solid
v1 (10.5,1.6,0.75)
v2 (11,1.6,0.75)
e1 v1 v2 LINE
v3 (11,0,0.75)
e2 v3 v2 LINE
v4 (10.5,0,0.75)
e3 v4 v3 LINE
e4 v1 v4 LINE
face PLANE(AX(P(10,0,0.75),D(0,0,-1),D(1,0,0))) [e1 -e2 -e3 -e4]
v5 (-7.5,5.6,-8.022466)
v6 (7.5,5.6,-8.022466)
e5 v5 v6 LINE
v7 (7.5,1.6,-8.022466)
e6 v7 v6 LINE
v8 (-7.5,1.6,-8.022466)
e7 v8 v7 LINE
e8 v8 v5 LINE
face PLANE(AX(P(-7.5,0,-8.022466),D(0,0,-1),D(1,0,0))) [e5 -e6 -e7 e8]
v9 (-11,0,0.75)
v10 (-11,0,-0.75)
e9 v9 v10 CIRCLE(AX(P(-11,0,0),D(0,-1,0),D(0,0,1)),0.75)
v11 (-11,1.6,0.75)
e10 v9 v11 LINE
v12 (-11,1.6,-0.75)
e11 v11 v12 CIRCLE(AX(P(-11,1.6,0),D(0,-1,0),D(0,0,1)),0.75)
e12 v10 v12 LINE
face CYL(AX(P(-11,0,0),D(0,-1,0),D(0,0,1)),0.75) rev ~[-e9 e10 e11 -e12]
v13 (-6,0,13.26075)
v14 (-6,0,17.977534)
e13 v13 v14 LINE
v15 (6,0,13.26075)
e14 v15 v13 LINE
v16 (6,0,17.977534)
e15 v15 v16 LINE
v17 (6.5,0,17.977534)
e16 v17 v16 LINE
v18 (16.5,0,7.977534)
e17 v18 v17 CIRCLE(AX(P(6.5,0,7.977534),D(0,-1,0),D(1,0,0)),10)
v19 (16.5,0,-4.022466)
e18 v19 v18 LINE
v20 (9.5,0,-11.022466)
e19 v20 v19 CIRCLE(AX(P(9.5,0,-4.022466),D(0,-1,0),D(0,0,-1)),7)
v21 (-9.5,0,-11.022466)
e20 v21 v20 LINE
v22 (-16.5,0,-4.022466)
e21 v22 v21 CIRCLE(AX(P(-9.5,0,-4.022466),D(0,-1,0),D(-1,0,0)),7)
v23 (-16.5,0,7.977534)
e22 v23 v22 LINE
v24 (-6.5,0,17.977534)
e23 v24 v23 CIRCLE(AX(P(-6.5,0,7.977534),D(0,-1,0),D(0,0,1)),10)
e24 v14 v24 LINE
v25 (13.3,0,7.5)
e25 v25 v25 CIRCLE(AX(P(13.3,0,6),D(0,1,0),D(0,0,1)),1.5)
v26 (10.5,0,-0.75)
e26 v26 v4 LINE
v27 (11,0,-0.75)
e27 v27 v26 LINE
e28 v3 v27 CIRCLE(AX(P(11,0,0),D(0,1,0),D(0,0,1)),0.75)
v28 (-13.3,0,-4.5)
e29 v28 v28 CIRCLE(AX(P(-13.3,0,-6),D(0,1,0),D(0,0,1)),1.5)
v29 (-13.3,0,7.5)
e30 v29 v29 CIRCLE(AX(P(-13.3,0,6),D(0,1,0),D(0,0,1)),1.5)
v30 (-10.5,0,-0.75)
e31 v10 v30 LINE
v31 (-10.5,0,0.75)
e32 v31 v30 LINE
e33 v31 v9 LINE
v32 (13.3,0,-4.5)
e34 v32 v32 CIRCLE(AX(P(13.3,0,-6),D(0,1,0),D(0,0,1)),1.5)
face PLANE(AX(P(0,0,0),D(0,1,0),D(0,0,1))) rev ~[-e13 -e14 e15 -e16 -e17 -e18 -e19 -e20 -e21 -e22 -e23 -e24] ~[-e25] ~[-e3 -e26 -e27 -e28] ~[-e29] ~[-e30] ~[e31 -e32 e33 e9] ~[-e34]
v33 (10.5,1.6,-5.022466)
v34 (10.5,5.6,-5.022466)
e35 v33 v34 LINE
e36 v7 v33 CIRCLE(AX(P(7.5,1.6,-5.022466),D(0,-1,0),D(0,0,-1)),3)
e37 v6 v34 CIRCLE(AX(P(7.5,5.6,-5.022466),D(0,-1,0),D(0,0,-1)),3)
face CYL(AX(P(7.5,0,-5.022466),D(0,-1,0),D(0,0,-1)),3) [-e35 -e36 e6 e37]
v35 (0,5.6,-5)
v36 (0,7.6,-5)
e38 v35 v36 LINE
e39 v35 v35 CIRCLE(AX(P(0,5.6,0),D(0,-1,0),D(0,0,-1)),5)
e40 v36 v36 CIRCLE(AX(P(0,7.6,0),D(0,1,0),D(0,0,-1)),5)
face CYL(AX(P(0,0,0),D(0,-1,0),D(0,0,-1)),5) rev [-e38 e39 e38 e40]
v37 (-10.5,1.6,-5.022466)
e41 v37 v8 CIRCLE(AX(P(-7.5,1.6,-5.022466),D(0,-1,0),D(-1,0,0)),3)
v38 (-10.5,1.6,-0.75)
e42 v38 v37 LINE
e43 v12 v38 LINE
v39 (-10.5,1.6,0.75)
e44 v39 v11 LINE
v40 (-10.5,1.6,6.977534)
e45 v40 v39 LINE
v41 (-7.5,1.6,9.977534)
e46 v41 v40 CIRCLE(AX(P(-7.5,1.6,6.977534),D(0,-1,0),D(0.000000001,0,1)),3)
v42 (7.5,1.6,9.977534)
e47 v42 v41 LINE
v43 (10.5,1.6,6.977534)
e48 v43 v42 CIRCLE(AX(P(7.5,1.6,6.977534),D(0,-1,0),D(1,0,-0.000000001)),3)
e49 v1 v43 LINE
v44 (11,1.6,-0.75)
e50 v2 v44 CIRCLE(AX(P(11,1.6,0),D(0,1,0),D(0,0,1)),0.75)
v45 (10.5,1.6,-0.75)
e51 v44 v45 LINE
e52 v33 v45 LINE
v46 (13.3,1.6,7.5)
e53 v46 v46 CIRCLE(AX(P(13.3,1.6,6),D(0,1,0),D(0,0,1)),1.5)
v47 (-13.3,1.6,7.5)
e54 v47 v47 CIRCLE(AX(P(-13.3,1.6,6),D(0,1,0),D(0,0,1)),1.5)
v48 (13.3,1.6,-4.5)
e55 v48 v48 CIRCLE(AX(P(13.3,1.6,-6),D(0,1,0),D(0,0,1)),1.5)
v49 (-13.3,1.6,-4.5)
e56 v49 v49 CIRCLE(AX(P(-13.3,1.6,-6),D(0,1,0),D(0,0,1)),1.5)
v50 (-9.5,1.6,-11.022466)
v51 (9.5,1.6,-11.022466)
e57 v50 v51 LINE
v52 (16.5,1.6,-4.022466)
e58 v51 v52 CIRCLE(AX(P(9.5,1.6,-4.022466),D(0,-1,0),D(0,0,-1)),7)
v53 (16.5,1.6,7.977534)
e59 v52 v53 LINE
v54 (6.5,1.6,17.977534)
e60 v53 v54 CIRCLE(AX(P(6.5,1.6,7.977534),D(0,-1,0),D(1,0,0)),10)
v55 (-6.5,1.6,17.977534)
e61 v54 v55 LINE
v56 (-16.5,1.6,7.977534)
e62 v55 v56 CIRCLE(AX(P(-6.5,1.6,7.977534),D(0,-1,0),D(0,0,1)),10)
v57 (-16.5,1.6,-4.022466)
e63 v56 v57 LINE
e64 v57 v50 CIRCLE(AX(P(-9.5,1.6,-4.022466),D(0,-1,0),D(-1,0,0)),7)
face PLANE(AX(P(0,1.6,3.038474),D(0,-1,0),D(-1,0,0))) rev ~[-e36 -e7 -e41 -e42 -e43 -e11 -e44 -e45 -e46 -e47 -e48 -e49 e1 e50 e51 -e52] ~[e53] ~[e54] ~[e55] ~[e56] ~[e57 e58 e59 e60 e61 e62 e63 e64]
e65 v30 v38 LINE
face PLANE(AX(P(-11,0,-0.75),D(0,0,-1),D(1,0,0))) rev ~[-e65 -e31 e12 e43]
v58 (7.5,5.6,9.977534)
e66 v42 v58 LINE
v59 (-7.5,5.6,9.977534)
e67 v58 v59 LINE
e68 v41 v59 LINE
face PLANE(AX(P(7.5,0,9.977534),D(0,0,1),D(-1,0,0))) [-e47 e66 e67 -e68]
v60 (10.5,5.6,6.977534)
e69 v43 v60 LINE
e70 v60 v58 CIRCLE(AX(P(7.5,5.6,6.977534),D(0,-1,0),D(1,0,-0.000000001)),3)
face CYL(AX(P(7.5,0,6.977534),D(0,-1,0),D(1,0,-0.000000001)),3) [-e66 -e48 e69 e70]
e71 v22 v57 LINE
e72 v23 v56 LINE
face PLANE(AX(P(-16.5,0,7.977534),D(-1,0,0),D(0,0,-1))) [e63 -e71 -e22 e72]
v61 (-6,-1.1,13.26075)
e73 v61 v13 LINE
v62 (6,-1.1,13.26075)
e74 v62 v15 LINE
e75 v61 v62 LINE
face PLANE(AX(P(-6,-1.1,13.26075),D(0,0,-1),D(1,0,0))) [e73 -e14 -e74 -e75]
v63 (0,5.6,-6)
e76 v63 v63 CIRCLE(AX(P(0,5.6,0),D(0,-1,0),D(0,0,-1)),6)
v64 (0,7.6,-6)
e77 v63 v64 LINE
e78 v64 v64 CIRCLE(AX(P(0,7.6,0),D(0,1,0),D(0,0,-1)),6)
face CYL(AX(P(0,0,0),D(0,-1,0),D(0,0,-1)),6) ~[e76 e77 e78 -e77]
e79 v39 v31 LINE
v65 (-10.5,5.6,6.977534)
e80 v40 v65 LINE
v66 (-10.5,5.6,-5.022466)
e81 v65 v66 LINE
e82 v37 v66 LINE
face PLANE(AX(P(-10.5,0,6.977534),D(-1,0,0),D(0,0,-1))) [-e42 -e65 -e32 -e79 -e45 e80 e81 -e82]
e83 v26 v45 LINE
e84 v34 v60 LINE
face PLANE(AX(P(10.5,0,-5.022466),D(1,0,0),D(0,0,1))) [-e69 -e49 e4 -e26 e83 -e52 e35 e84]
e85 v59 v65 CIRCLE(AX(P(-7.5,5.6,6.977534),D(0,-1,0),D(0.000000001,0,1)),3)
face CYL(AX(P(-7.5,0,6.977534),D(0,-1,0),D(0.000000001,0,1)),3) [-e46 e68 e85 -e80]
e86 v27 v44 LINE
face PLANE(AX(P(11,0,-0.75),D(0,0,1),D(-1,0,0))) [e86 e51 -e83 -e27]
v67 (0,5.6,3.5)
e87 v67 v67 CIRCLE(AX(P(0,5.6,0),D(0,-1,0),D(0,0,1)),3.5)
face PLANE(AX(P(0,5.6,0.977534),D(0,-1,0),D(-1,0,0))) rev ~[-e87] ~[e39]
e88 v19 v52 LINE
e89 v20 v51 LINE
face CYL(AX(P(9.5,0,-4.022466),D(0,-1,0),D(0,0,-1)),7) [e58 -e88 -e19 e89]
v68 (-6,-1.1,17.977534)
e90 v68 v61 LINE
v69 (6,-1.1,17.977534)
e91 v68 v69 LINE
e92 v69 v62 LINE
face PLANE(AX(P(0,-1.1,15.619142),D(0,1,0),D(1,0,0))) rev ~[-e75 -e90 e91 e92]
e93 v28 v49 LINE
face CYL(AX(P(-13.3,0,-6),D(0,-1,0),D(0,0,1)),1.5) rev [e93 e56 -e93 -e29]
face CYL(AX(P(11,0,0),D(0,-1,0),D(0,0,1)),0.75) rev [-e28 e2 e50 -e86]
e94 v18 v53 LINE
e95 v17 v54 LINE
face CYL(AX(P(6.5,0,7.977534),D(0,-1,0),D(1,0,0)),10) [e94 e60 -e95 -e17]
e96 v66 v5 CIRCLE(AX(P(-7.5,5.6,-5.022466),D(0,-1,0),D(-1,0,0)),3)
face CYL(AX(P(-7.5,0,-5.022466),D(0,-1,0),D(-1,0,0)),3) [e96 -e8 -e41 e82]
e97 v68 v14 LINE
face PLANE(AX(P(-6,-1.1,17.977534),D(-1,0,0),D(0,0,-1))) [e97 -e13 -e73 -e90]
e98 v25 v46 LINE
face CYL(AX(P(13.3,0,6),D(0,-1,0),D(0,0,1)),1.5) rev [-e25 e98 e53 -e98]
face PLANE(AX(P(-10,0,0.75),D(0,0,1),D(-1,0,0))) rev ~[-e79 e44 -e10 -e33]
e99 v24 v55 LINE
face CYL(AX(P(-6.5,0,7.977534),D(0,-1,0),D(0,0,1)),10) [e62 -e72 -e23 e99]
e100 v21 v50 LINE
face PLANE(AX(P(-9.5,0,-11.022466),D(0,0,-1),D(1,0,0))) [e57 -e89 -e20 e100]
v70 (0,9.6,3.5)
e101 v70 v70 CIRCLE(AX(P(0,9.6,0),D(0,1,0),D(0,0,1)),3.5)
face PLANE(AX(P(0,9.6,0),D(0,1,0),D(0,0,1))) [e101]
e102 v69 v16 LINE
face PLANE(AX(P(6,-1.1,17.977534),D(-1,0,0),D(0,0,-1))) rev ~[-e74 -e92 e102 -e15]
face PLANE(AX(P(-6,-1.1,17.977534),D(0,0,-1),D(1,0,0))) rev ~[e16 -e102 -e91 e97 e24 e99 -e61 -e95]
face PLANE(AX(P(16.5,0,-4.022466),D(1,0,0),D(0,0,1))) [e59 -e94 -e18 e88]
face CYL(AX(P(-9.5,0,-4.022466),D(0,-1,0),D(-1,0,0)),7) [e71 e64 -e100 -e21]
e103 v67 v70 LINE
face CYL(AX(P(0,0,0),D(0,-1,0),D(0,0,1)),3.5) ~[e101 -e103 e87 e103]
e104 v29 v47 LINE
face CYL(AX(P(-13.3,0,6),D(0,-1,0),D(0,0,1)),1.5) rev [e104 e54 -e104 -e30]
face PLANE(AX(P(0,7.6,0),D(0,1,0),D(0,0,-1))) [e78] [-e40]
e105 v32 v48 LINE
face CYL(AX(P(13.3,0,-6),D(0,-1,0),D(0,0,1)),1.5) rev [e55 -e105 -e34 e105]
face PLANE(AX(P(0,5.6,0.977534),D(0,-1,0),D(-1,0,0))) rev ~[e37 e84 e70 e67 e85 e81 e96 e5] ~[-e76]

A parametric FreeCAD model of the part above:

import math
import FreeCAD as App
import Part
import Sketcher
from FreeCAD import Vector


def add_polygon(sketch, points):
    """Adds a closed chain of lines whose ends are joined by coincident constraints."""
    first, n = sketch.GeometryCount, len(points)
    for a, b in zip(points, points[1:] + points[:1]):
        sketch.addGeometry(Part.LineSegment(App.Vector(*a, 0), App.Vector(*b, 0)), False)
    for i in range(n):
        sketch.addConstraint(Sketcher.Constraint("Coincident", first + i, 2, first + (i + 1) % n, 1))

doc = App.newDocument("Part")
body = doc.addObject("PartDesign::Body", "Body")

# Sketch on XZ plane
sketch1 = body.newObject("Sketcher::SketchObject", "Sketch")
sketch1.AttachmentSupport = (doc.getObject("XZ_Plane"), [""])
sketch1.MapMode = "FlatFace"
sketch1.addGeometry(Part.LineSegment(Vector(9.5, -11.022466, 0), Vector(-9.5, -11.022466, 0)), False)
sketch1.addGeometry(Part.ArcOfCircle(Part.Circle(Vector(-9.5, -4.022466, 0), Vector(0, 0, 1), 7), math.radians(-180), math.radians(-90)), False)
sketch1.addGeometry(Part.LineSegment(Vector(-16.5, -4.022466, 0), Vector(-16.5, 7.977534, 0)), False)
sketch1.addGeometry(Part.ArcOfCircle(Part.Circle(Vector(-6.5, 7.977534, 0), Vector(0, 0, 1), 10), math.radians(90), math.radians(180)), False)
sketch1.addGeometry(Part.LineSegment(Vector(-6.5, 17.977534, 0), Vector(6.5, 17.977534, 0)), False)
sketch1.addGeometry(Part.ArcOfCircle(Part.Circle(Vector(6.5, 7.977534, 0), Vector(0, 0, 1), 10), math.radians(0), math.radians(90)), False)
sketch1.addGeometry(Part.LineSegment(Vector(16.5, 7.977534, 0), Vector(16.5, -4.022466, 0)), False)
sketch1.addGeometry(Part.ArcOfCircle(Part.Circle(Vector(9.5, -4.022466, 0), Vector(0, 0, 1), 7), math.radians(-90), math.radians(0)), False)
sketch1.addGeometry(Part.Circle(Vector(13.3, 6, 0), Vector(0, 0, 1), 1.5), False)
sketch1.addGeometry(Part.Circle(Vector(-13.3, 6, 0), Vector(0, 0, 1), 1.5), False)
sketch1.addGeometry(Part.ArcOfCircle(Part.Circle(Vector(11, 0, 0), Vector(0, 0, 1), 0.75), math.radians(-90), math.radians(90)), False)
sketch1.addGeometry(Part.LineSegment(Vector(11, 0.75, 0), Vector(10, 0.75, 0)), False)
sketch1.addGeometry(Part.ArcOfCircle(Part.Circle(Vector(10, 0, 0), Vector(0, 0, 1), 0.75), math.radians(90), math.radians(270)), False)
sketch1.addGeometry(Part.LineSegment(Vector(10, -0.75, 0), Vector(11, -0.75, 0)), False)
sketch1.addGeometry(Part.Circle(Vector(13.3, -6, 0), Vector(0, 0, 1), 1.5), False)
sketch1.addGeometry(Part.LineSegment(Vector(-11, -0.75, 0), Vector(-10, -0.75, 0)), False)
sketch1.addGeometry(Part.ArcOfCircle(Part.Circle(Vector(-10, 0, 0), Vector(0, 0, 1), 0.75), math.radians(-90), math.radians(90)), False)
sketch1.addGeometry(Part.LineSegment(Vector(-10, 0.75, 0), Vector(-11, 0.75, 0)), False)
sketch1.addGeometry(Part.ArcOfCircle(Part.Circle(Vector(-11, 0, 0), Vector(0, 0, 1), 0.75), math.radians(90), math.radians(270)), False)
sketch1.addGeometry(Part.Circle(Vector(-13.3, -6, 0), Vector(0, 0, 1), 1.5), False)
sketch1.addConstraint(Sketcher.Constraint("Tangent", 0, 2, 1, 2))
sketch1.addConstraint(Sketcher.Constraint("Tangent", 1, 1, 2, 1))
sketch1.addConstraint(Sketcher.Constraint("Tangent", 2, 2, 3, 2))
sketch1.addConstraint(Sketcher.Constraint("Tangent", 3, 1, 4, 1))
sketch1.addConstraint(Sketcher.Constraint("Tangent", 4, 2, 5, 2))
sketch1.addConstraint(Sketcher.Constraint("Tangent", 5, 1, 6, 1))
sketch1.addConstraint(Sketcher.Constraint("Tangent", 6, 2, 7, 2))
sketch1.addConstraint(Sketcher.Constraint("Tangent", 7, 1, 0, 1))
sketch1.addConstraint(Sketcher.Constraint("Tangent", 10, 2, 11, 1))
sketch1.addConstraint(Sketcher.Constraint("Tangent", 11, 2, 12, 1))
sketch1.addConstraint(Sketcher.Constraint("Tangent", 12, 2, 13, 1))
sketch1.addConstraint(Sketcher.Constraint("Tangent", 13, 2, 10, 1))
sketch1.addConstraint(Sketcher.Constraint("Tangent", 15, 2, 16, 1))
sketch1.addConstraint(Sketcher.Constraint("Tangent", 16, 2, 17, 1))
sketch1.addConstraint(Sketcher.Constraint("Tangent", 17, 2, 18, 1))
sketch1.addConstraint(Sketcher.Constraint("Tangent", 18, 2, 15, 1))
sketch1.addConstraint(Sketcher.Constraint("Horizontal", 0))
sketch1.addConstraint(Sketcher.Constraint("Vertical", 2))
sketch1.addConstraint(Sketcher.Constraint("Horizontal", 4))
sketch1.addConstraint(Sketcher.Constraint("Vertical", 6))
sketch1.addConstraint(Sketcher.Constraint("Horizontal", 11))
sketch1.addConstraint(Sketcher.Constraint("Horizontal", 13))
sketch1.addConstraint(Sketcher.Constraint("Horizontal", 15))
sketch1.addConstraint(Sketcher.Constraint("Horizontal", 17))
sketch1.addConstraint(Sketcher.Constraint("Equal", 3, 5))
sketch1.addConstraint(Sketcher.Constraint("Equal", 1, 7))
sketch1.addConstraint(Sketcher.Constraint("Equal", 8, 9))
sketch1.addConstraint(Sketcher.Constraint("Equal", 9, 14))
sketch1.addConstraint(Sketcher.Constraint("Equal", 12, 16))
sketch1.addConstraint(Sketcher.Constraint("Equal", 14, 19))
sketch1.addConstraint(Sketcher.Constraint("Symmetric", 9, 3, 14, 3, -1, 1))
sketch1.addConstraint(Sketcher.Constraint("Symmetric", 12, 3, 16, 3, -1, 1))
sketch1.addConstraint(Sketcher.Constraint("Symmetric", 8, 3, 19, 3, -1, 1))
sketch1.addConstraint(Sketcher.Constraint("Symmetric", 8, 3, 9, 3, -2))
sketch1.addConstraint(Sketcher.Constraint("Symmetric", 10, 3, 18, 3, -2))
sketch1.addConstraint(Sketcher.Constraint("Diameter", 8, 3.0))
sketch1.addConstraint(Sketcher.Constraint("Radius", 1, 7.0))
sketch1.addConstraint(Sketcher.Constraint("Radius", 3, 10.0))
sketch1.addConstraint(Sketcher.Constraint("DistanceX", 0, 2, 0, 1, 19.0))
sketch1.addConstraint(Sketcher.Constraint("DistanceX", 11, 2, 11, 1, 1.0))
sketch1.addConstraint(Sketcher.Constraint("DistanceY", 2, 1, 2, 2, 12.0))
sketch1.addConstraint(Sketcher.Constraint("Radius", 10, 0.75))
sketch1.addConstraint(Sketcher.Constraint("DistanceY", -1, 1, 8, 3, 6.0))
sketch1.addConstraint(Sketcher.Constraint("DistanceX", -1, 1, 10, 3, 11.0))
sketch1.addConstraint(Sketcher.Constraint("DistanceX", 1, 3, -1, 1, 9.5))
sketch1.addConstraint(Sketcher.Constraint("DistanceX", -1, 1, 8, 3, 13.3))
sketch1.addConstraint(Sketcher.Constraint("DistanceY", 1, 3, -1, 1, 4.022466))
pad1 = body.newObject("PartDesign::Pad", "Pad")
pad1.Profile = sketch1
pad1.Length = 1.6
pad1.Reversed = True

# Sketch on XZ plane
sketch2 = body.newObject("Sketcher::SketchObject", "Sketch001")
sketch2.AttachmentSupport = (doc.getObject("XZ_Plane"), [""])
sketch2.MapMode = "FlatFace"
sketch2.addGeometry(Part.LineSegment(Vector(7.5, -8.022466, 0), Vector(-7.5, -8.022466, 0)), False)
sketch2.addGeometry(Part.ArcOfCircle(Part.Circle(Vector(-7.5, -5.022466, 0), Vector(0, 0, 1), 3), math.radians(180), math.radians(270)), False)
sketch2.addGeometry(Part.LineSegment(Vector(-10.5, -5.022466, 0), Vector(-10.5, 6.977534, 0)), False)
sketch2.addGeometry(Part.ArcOfCircle(Part.Circle(Vector(-7.5, 6.977534, 0), Vector(0, 0, 1), 3), math.radians(90), math.radians(180)), False)
sketch2.addGeometry(Part.LineSegment(Vector(-7.5, 9.977534, 0), Vector(7.5, 9.977534, 0)), False)
sketch2.addGeometry(Part.ArcOfCircle(Part.Circle(Vector(7.5, 6.977534, 0), Vector(0, 0, 1), 3), math.radians(0), math.radians(90)), False)
sketch2.addGeometry(Part.LineSegment(Vector(10.5, 6.977534, 0), Vector(10.5, -5.022466, 0)), False)
sketch2.addGeometry(Part.ArcOfCircle(Part.Circle(Vector(7.5, -5.022466, 0), Vector(0, 0, 1), 3), math.radians(-90), math.radians(0)), False)
sketch2.addConstraint(Sketcher.Constraint("Tangent", 0, 2, 1, 2))
sketch2.addConstraint(Sketcher.Constraint("Tangent", 1, 1, 2, 1))
sketch2.addConstraint(Sketcher.Constraint("Tangent", 2, 2, 3, 2))
sketch2.addConstraint(Sketcher.Constraint("Tangent", 3, 1, 4, 1))
sketch2.addConstraint(Sketcher.Constraint("Tangent", 4, 2, 5, 2))
sketch2.addConstraint(Sketcher.Constraint("Tangent", 5, 1, 6, 1))
sketch2.addConstraint(Sketcher.Constraint("Tangent", 6, 2, 7, 2))
sketch2.addConstraint(Sketcher.Constraint("Tangent", 7, 1, 0, 1))
sketch2.addConstraint(Sketcher.Constraint("Horizontal", 0))
sketch2.addConstraint(Sketcher.Constraint("Vertical", 2))
sketch2.addConstraint(Sketcher.Constraint("Horizontal", 4))
sketch2.addConstraint(Sketcher.Constraint("Vertical", 6))
sketch2.addConstraint(Sketcher.Constraint("Equal", 1, 3))
sketch2.addConstraint(Sketcher.Constraint("Equal", 3, 5))
sketch2.addConstraint(Sketcher.Constraint("Equal", 5, 7))
sketch2.addConstraint(Sketcher.Constraint("Radius", 1, 3.0))
sketch2.addConstraint(Sketcher.Constraint("DistanceX", 0, 2, 0, 1, 15.0))
sketch2.addConstraint(Sketcher.Constraint("DistanceY", 2, 1, 2, 2, 12.0))
sketch2.addConstraint(Sketcher.Constraint("DistanceX", 1, 3, -1, 1, 7.5))
sketch2.addConstraint(Sketcher.Constraint("DistanceY", 1, 3, -1, 1, 5.022466))
pad2 = body.newObject("PartDesign::Pad", "Pad001")
pad2.Profile = sketch2
pad2.Length = 5.6
pad2.Reversed = True

# Sketch on XZ plane
sketch3 = body.newObject("Sketcher::SketchObject", "Sketch002")
sketch3.AttachmentSupport = (doc.getObject("XZ_Plane"), [""])
sketch3.MapMode = "FlatFace"
sketch3.addGeometry(Part.Circle(Vector(0, 0, 0), Vector(0, 0, 1), 6), False)
sketch3.addGeometry(Part.Circle(Vector(0, 0, 0), Vector(0, 0, 1), 5), False)
sketch3.addConstraint(Sketcher.Constraint("Coincident", 0, 3, -1, 1))
sketch3.addConstraint(Sketcher.Constraint("Coincident", 1, 3, -1, 1))
sketch3.addConstraint(Sketcher.Constraint("Diameter", 0, 12.0))
sketch3.addConstraint(Sketcher.Constraint("Diameter", 1, 10.0))
pad3 = body.newObject("PartDesign::Pad", "Pad002")
pad3.Profile = sketch3
pad3.Length = 7.6
pad3.Reversed = True

# Sketch on XZ plane
sketch4 = body.newObject("Sketcher::SketchObject", "Sketch003")
sketch4.AttachmentSupport = (doc.getObject("XZ_Plane"), [""])
sketch4.MapMode = "FlatFace"
sketch4.addGeometry(Part.Circle(Vector(0, 0, 0), Vector(0, 0, 1), 3.5), False)
sketch4.addGeometry(Part.Circle(Vector(0, 0, 0), Vector(0, 0, 1), 2.75), False)
sketch4.addConstraint(Sketcher.Constraint("Coincident", 0, 3, -1, 1))
sketch4.addConstraint(Sketcher.Constraint("Coincident", 1, 3, -1, 1))
sketch4.addConstraint(Sketcher.Constraint("Diameter", 0, 7.0))
sketch4.addConstraint(Sketcher.Constraint("Diameter", 1, 5.5))
pad4 = body.newObject("PartDesign::Pad", "Pad003")
pad4.Profile = sketch4
pad4.Length = 9.6
pad4.Reversed = True

# Sketch on XZ plane
sketch5 = body.newObject("Sketcher::SketchObject", "Sketch004")
sketch5.AttachmentSupport = (doc.getObject("XZ_Plane"), [""])
sketch5.MapMode = "FlatFace"
sketch5.addGeometry(Part.Circle(Vector(0, 0, 0), Vector(0, 0, 1), 3.5), False)
sketch5.addConstraint(Sketcher.Constraint("Coincident", 0, 3, -1, 1))
sketch5.addConstraint(Sketcher.Constraint("Diameter", 0, 7.0))
pad5 = body.newObject("PartDesign::Pad", "Pad004")
pad5.Profile = sketch5
pad5.Length = 9.6
pad5.Reversed = True

# Sketch on XZ plane
sketch6 = body.newObject("Sketcher::SketchObject", "Sketch005")
sketch6.AttachmentSupport = (doc.getObject("XZ_Plane"), [""])
sketch6.MapMode = "FlatFace"
add_polygon(sketch6, [(-6, 13.26075), (-6, 17.977534), (6, 17.977534), (6, 13.26075)])  # lines 0-3
sketch6.addConstraint(Sketcher.Constraint("Vertical", 0))
sketch6.addConstraint(Sketcher.Constraint("Horizontal", 1))
sketch6.addConstraint(Sketcher.Constraint("Vertical", 2))
sketch6.addConstraint(Sketcher.Constraint("Horizontal", 3))
sketch6.addConstraint(Sketcher.Constraint("DistanceX", 1, 1, 1, 2, 12.0))
sketch6.addConstraint(Sketcher.Constraint("DistanceX", 0, 2, -1, 1, 6.0))
sketch6.addConstraint(Sketcher.Constraint("DistanceY", 0, 1, 0, 2, 4.716784))
sketch6.addConstraint(Sketcher.Constraint("DistanceY", -1, 1, 2, 2, 13.26075))
pad6 = body.newObject("PartDesign::Pad", "Pad005")
pad6.Profile = sketch6
pad6.Type = "TwoLengths"
pad6.Length = 0.001
pad6.Length2 = 1.1
pad6.Reversed = True

doc.recompute()
